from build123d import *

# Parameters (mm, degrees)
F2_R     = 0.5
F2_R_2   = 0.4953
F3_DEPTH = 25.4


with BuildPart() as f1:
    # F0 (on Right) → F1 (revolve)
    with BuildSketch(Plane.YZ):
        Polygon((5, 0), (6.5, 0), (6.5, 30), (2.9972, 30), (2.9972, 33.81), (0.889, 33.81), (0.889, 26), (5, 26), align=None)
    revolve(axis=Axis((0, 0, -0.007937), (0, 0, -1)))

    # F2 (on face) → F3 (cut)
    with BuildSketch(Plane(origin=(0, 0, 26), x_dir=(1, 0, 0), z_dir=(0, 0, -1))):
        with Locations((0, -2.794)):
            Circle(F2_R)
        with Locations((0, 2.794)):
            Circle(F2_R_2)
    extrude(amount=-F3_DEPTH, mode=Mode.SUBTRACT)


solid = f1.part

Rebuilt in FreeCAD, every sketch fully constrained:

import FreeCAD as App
import Part
import Sketcher
from FreeCAD import Vector


def add_polygon(sketch, points):
    """Adds a closed chain of lines whose ends are joined by coincident constraints."""
    first, n = sketch.GeometryCount, len(points)
    for a, b in zip(points, points[1:] + points[:1]):
        sketch.addGeometry(Part.LineSegment(App.Vector(*a, 0), App.Vector(*b, 0)), False)
    for i in range(n):
        sketch.addConstraint(Sketcher.Constraint("Coincident", first + i, 2, first + (i + 1) % n, 1))

doc = App.newDocument("Part")
body = doc.addObject("PartDesign::Body", "Body")

# Sketch on YZ plane
sketch1 = doc.addObject("Sketcher::SketchObject", "Sketch")
body.addObject(sketch1)
sketch1.AttachmentSupport = (doc.YZ_Plane, [""])
sketch1.MapMode = "FlatFace"
add_polygon(sketch1, [(5, 0), (6.5, 0), (6.5, 30), (2.9972, 30), (2.9972, 33.81), (0.889, 33.81), (0.889, 26), (5, 26)])  # lines 0-7
sketch1.addConstraint([
    Sketcher.Constraint("Horizontal", 0),
    Sketcher.Constraint("Vertical", 1),
    Sketcher.Constraint("Horizontal", 2),
    Sketcher.Constraint("Vertical", 3),
    Sketcher.Constraint("Horizontal", 4),
    Sketcher.Constraint("Vertical", 5),
    Sketcher.Constraint("Horizontal", 6),
    Sketcher.Constraint("Vertical", 7),
    Sketcher.Constraint("PointOnObject", 0, 2, -1),
    Sketcher.Constraint("DistanceY", 1, 1, 1, 2, 30.0),
    Sketcher.Constraint("DistanceY", 7, 2, 7, 1, 26.0),
    Sketcher.Constraint("DistanceX", 0, 1, 0, 2, 1.5),
    Sketcher.Constraint("DistanceX", -1, 1, 6, 2, 5.0),
    Sketcher.Constraint("DistanceY", 3, 1, 3, 2, 3.81),
    Sketcher.Constraint("DistanceX", 6, 1, 6, 2, 4.111),
    Sketcher.Constraint("DistanceX", 2, 2, 2, 1, 3.5028),
])
revolution = doc.addObject("PartDesign::Revolution", "Revolution")
body.addObject(revolution)
revolution.Profile = sketch1
revolution.ReferenceAxis = (sketch1, ["V_Axis"])
revolution.Angle = 360

# Sketch on XY plane
sketch2 = doc.addObject("Sketcher::SketchObject", "Sketch001")
body.addObject(sketch2)
sketch2.AttachmentSupport = (doc.XY_Plane, [""])
sketch2.MapMode = "FlatFace"
sketch2.AttachmentOffset = App.Placement(Vector(0, 0, 26), App.Rotation())
sketch2.addGeometry([
    Part.Circle(Vector(0, 2.794, 0), Vector(0, 0, 1), 0.5),
    Part.Circle(Vector(0, -2.794, 0), Vector(0, 0, 1), 0.4953),
], False)
sketch2.addConstraint([
    Sketcher.Constraint("Symmetric", 0, 3, 1, 3, -1, 1),
    Sketcher.Constraint("PointOnObject", 0, 3, -2),
    Sketcher.Constraint("Diameter", 0, 1.0),
    Sketcher.Constraint("Diameter", 1, 0.9906),
    Sketcher.Constraint("DistanceY", -1, 1, 0, 3, 2.794),
])
pocket1 = doc.addObject("PartDesign::Pocket", "Pocket")
body.addObject(pocket1)
pocket1.Profile = sketch2
pocket1.Length = 25.4
pocket1.Reversed = True

doc.recompute()
